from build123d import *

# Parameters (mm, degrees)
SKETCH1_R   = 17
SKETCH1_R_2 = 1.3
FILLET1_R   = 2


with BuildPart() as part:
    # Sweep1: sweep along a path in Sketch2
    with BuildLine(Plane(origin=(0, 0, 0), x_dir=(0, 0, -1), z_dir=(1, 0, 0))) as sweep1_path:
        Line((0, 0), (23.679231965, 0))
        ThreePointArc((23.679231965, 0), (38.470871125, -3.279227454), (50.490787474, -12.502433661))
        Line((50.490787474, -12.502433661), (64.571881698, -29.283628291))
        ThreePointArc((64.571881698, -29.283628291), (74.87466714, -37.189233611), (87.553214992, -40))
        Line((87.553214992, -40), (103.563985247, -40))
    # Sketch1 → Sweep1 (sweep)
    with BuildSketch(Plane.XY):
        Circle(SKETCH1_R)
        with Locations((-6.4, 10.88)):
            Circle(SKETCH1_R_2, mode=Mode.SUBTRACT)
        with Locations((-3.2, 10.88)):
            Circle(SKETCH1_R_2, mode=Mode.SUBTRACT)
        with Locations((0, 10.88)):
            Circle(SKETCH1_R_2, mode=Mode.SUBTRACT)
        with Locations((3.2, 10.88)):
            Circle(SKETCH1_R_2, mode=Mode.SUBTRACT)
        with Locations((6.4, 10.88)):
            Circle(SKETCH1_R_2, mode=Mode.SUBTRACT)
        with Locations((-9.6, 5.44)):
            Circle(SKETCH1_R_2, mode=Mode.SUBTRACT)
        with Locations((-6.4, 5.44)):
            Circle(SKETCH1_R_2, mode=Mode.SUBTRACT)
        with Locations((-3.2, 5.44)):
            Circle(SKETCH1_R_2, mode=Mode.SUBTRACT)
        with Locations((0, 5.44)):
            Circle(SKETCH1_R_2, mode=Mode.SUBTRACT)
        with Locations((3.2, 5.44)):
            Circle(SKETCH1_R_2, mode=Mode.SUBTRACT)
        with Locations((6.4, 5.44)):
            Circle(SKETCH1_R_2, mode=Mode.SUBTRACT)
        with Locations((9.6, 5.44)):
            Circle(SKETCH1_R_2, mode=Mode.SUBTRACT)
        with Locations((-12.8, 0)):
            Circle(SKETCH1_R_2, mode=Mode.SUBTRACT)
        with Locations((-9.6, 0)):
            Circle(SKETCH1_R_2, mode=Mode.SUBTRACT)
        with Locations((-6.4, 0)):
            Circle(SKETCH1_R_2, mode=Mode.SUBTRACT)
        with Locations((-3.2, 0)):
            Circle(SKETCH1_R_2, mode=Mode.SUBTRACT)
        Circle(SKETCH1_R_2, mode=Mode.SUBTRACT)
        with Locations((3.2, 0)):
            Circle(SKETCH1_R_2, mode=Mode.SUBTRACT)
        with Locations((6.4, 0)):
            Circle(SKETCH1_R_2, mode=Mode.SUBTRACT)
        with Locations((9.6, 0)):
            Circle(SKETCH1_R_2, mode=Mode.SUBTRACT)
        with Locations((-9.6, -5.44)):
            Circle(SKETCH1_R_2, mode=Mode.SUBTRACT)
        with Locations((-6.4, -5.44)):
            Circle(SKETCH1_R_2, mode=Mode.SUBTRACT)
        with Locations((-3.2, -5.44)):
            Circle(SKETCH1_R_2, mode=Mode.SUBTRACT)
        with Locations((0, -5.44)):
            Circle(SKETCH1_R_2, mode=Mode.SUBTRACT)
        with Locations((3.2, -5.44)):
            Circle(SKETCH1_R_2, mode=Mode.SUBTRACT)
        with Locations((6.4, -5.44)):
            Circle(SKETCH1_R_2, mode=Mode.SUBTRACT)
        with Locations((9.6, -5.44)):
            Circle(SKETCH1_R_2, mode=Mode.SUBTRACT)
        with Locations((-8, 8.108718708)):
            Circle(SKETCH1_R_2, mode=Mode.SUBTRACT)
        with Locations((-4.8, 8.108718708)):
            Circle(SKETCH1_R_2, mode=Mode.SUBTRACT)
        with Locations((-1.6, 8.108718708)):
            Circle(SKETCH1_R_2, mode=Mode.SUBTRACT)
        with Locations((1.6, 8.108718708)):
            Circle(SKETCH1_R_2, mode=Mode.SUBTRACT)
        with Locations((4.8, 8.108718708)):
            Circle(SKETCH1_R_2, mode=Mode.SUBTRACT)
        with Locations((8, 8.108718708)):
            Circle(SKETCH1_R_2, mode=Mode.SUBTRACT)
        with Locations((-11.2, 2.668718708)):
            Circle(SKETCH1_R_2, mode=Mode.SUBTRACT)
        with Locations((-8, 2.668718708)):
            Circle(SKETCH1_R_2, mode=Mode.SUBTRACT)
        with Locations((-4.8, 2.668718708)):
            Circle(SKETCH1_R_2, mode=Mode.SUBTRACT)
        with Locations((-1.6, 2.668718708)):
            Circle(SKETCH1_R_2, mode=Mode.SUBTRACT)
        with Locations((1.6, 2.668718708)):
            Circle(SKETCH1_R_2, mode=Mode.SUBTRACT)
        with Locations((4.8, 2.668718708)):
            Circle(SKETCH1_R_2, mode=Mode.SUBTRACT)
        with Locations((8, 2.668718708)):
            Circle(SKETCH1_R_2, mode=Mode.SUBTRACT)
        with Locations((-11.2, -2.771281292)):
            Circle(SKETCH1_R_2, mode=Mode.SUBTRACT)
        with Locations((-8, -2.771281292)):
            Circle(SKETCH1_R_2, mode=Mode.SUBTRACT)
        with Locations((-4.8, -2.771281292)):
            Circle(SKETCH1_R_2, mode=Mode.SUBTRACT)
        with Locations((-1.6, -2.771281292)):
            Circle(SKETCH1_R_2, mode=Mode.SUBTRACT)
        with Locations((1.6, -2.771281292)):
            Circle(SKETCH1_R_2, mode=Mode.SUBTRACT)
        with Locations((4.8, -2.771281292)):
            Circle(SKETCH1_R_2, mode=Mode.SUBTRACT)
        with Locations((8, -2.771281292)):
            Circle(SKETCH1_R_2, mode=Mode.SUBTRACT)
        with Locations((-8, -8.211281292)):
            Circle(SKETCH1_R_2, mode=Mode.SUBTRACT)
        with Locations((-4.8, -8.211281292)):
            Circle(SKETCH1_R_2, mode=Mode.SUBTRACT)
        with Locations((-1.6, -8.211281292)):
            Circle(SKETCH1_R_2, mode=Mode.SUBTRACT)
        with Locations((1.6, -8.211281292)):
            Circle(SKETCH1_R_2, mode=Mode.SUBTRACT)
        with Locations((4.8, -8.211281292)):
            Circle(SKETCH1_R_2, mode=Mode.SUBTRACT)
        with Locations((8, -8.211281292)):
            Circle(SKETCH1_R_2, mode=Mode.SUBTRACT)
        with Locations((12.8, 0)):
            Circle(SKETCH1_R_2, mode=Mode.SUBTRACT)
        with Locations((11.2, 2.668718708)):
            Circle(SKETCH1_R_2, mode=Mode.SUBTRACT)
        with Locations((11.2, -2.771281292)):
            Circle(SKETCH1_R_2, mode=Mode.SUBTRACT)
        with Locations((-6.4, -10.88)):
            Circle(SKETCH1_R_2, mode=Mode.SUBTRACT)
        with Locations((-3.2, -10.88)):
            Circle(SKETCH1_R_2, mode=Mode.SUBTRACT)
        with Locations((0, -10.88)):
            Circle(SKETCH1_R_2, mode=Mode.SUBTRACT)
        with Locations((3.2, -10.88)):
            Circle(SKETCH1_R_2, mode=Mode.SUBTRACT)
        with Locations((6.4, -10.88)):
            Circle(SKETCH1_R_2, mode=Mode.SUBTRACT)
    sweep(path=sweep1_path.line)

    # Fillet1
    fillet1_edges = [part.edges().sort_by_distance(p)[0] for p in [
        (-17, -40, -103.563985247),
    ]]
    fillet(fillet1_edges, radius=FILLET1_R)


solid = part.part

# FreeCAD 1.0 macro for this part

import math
import FreeCAD as App
import Part
import Sketcher
Q = App.Units.Quantity


def edges_at(feature, points):
    """Names of the edges that pass closest to the given points."""
    edges = feature.Shape.Edges
    near = lambda p: min(range(len(edges)), key=lambda i: edges[i].distToShape(Part.Vertex(*p))[0])
    return sorted({f"Edge{near(p) + 1}" for p in points})

doc = App.newDocument("Part")
params = doc.addObject("Spreadsheet::Sheet", "Params")
for row, (alias, value) in enumerate([
    ("sketch1_diameter", "34 mm"),
    ("sketch1_diameter2", "2.6 mm"),
    ("sketch2_radius", "35 mm"),
    ("sketch2_radius2", "30 mm"),
    ("fillet_radius", "2 mm"),
], start=1):
    params.set(f"A{row}", alias)
    params.set(f"B{row}", "=" + value)
    params.setAlias(f"B{row}", alias)

body = doc.addObject("PartDesign::Body", "Body")

# Sketch on XY plane
sketch1 = body.newObject("Sketcher::SketchObject", "Sketch")
sketch1.AttachmentSupport = (doc.getObject("XY_Plane"), [""])
sketch1.MapMode = "FlatFace"
sketch1.addGeometry([
    Part.Circle(App.Vector(0, 0, 0), App.Vector(0, 0, 1), 17),  # 0
    Part.Circle(App.Vector(-8, -8.2, 0), App.Vector(0, 0, 1), 1.3),  # 1
    Part.Circle(App.Vector(-6.4, -10.9, 0), App.Vector(0, 0, 1), 1.3),  # 2
    Part.Circle(App.Vector(-3.2, -10.9, 0), App.Vector(0, 0, 1), 1.3),  # 3
    Part.Circle(App.Vector(-4.8, -8.2, 0), App.Vector(0, 0, 1), 1.3),  # 4
    Part.Circle(App.Vector(-1.6, -8.2, 0), App.Vector(0, 0, 1), 1.3),  # 5
    Part.Circle(App.Vector(-9.6, -5.4, 0), App.Vector(0, 0, 1), 1.3),  # 6
    Part.Circle(App.Vector(-11.2, -2.8, 0), App.Vector(0, 0, 1), 1.3),  # 7
    Part.Circle(App.Vector(-8, -2.8, 0), App.Vector(0, 0, 1), 1.3),  # 8
    Part.Circle(App.Vector(-6.4, -5.4, 0), App.Vector(0, 0, 1), 1.3),  # 9
    Part.Circle(App.Vector(-3.2, -5.4, 0), App.Vector(0, 0, 1), 1.3),  # 10
    Part.Circle(App.Vector(-4.8, -2.8, 0), App.Vector(0, 0, 1), 1.3),  # 11
    Part.Circle(App.Vector(-1.6, -2.8, 0), App.Vector(0, 0, 1), 1.3),  # 12
    Part.Circle(App.Vector(0, -10.9, 0), App.Vector(0, 0, 1), 1.3),  # 13
    Part.Circle(App.Vector(3.2, -10.9, 0), App.Vector(0, 0, 1), 1.3),  # 14
    Part.Circle(App.Vector(6.4, -10.9, 0), App.Vector(0, 0, 1), 1.3),  # 15
    Part.Circle(App.Vector(1.6, -8.2, 0), App.Vector(0, 0, 1), 1.3),  # 16
    Part.Circle(App.Vector(4.8, -8.2, 0), App.Vector(0, 0, 1), 1.3),  # 17
    Part.Circle(App.Vector(8, -8.2, 0), App.Vector(0, 0, 1), 1.3),  # 18
    Part.Circle(App.Vector(0, -5.4, 0), App.Vector(0, 0, 1), 1.3),  # 19
    Part.Circle(App.Vector(3.2, -5.4, 0), App.Vector(0, 0, 1), 1.3),  # 20
    Part.Circle(App.Vector(6.4, -5.4, 0), App.Vector(0, 0, 1), 1.3),  # 21
    Part.Circle(App.Vector(1.6, -2.8, 0), App.Vector(0, 0, 1), 1.3),  # 22
    Part.Circle(App.Vector(4.8, -2.8, 0), App.Vector(0, 0, 1), 1.3),  # 23
    Part.Circle(App.Vector(9.6, -5.4, 0), App.Vector(0, 0, 1), 1.3),  # 24
    Part.Circle(App.Vector(8, -2.8, 0), App.Vector(0, 0, 1), 1.3),  # 25
    Part.Circle(App.Vector(11.2, -2.8, 0), App.Vector(0, 0, 1), 1.3),  # 26
    Part.Circle(App.Vector(-12.8, 0, 0), App.Vector(0, 0, 1), 1.3),  # 27
    Part.Circle(App.Vector(-11.2, 2.7, 0), App.Vector(0, 0, 1), 1.3),  # 28
    Part.Circle(App.Vector(-9.6, 0, 0), App.Vector(0, 0, 1), 1.3),  # 29
    Part.Circle(App.Vector(-8, 2.7, 0), App.Vector(0, 0, 1), 1.3),  # 30
    Part.Circle(App.Vector(-9.6, 5.4, 0), App.Vector(0, 0, 1), 1.3),  # 31
    Part.Circle(App.Vector(-6.4, 0, 0), App.Vector(0, 0, 1), 1.3),  # 32
    Part.Circle(App.Vector(-4.8, 2.7, 0), App.Vector(0, 0, 1), 1.3),  # 33
    Part.Circle(App.Vector(-3.2, 0, 0), App.Vector(0, 0, 1), 1.3),  # 34
    Part.Circle(App.Vector(-1.6, 2.7, 0), App.Vector(0, 0, 1), 1.3),  # 35
    Part.Circle(App.Vector(-6.4, 5.4, 0), App.Vector(0, 0, 1), 1.3),  # 36
    Part.Circle(App.Vector(-3.2, 5.4, 0), App.Vector(0, 0, 1), 1.3),  # 37
    Part.Circle(App.Vector(-8, 8.1, 0), App.Vector(0, 0, 1), 1.3),  # 38
    Part.Circle(App.Vector(-4.8, 8.1, 0), App.Vector(0, 0, 1), 1.3),  # 39
    Part.Circle(App.Vector(-1.6, 8.1, 0), App.Vector(0, 0, 1), 1.3),  # 40
    Part.Circle(App.Vector(-6.4, 10.9, 0), App.Vector(0, 0, 1), 1.3),  # 41
    Part.Circle(App.Vector(-3.2, 10.9, 0), App.Vector(0, 0, 1), 1.3),  # 42
    Part.Circle(App.Vector(0, 0, 0), App.Vector(0, 0, 1), 1.3),  # 43
    Part.Circle(App.Vector(3.2, 0, 0), App.Vector(0, 0, 1), 1.3),  # 44
    Part.Circle(App.Vector(1.6, 2.7, 0), App.Vector(0, 0, 1), 1.3),  # 45
    Part.Circle(App.Vector(6.4, 0, 0), App.Vector(0, 0, 1), 1.3),  # 46
    Part.Circle(App.Vector(4.8, 2.7, 0), App.Vector(0, 0, 1), 1.3),  # 47
    Part.Circle(App.Vector(0, 5.4, 0), App.Vector(0, 0, 1), 1.3),  # 48
    Part.Circle(App.Vector(3.2, 5.4, 0), App.Vector(0, 0, 1), 1.3),  # 49
    Part.Circle(App.Vector(6.4, 5.4, 0), App.Vector(0, 0, 1), 1.3),  # 50
    Part.Circle(App.Vector(9.6, 0, 0), App.Vector(0, 0, 1), 1.3),  # 51
    Part.Circle(App.Vector(8, 2.7, 0), App.Vector(0, 0, 1), 1.3),  # 52
    Part.Circle(App.Vector(12.8, 0, 0), App.Vector(0, 0, 1), 1.3),  # 53
    Part.Circle(App.Vector(11.2, 2.7, 0), App.Vector(0, 0, 1), 1.3),  # 54
    Part.Circle(App.Vector(9.6, 5.4, 0), App.Vector(0, 0, 1), 1.3),  # 55
    Part.Circle(App.Vector(1.6, 8.1, 0), App.Vector(0, 0, 1), 1.3),  # 56
    Part.Circle(App.Vector(4.8, 8.1, 0), App.Vector(0, 0, 1), 1.3),  # 57
    Part.Circle(App.Vector(0, 10.9, 0), App.Vector(0, 0, 1), 1.3),  # 58
    Part.Circle(App.Vector(3.2, 10.9, 0), App.Vector(0, 0, 1), 1.3),  # 59
    Part.Circle(App.Vector(6.4, 10.9, 0), App.Vector(0, 0, 1), 1.3),  # 60
    Part.Circle(App.Vector(8, 8.1, 0), App.Vector(0, 0, 1), 1.3),  # 61
], False)
sketch1.addConstraint([
    Sketcher.Constraint("Coincident", 0, 3, -1, 1),
    Sketcher.Constraint("Coincident", 43, 3, -1, 1),
    Sketcher.Constraint("Equal", 1, 2),
    Sketcher.Constraint("Equal", 2, 3),
    Sketcher.Constraint("Equal", 3, 4),
    Sketcher.Constraint("Equal", 4, 5),
    Sketcher.Constraint("Equal", 5, 6),
    Sketcher.Constraint("Equal", 6, 7),
    Sketcher.Constraint("Equal", 7, 8),
    Sketcher.Constraint("Equal", 8, 9),
    Sketcher.Constraint("Equal", 9, 10),
    Sketcher.Constraint("Equal", 10, 11),
    Sketcher.Constraint("Equal", 11, 12),
    Sketcher.Constraint("Equal", 12, 13),
    Sketcher.Constraint("Equal", 13, 14),
    Sketcher.Constraint("Equal", 14, 15),
    Sketcher.Constraint("Equal", 15, 16),
    Sketcher.Constraint("Equal", 16, 17),
    Sketcher.Constraint("Equal", 17, 18),
    Sketcher.Constraint("Equal", 18, 19),
    Sketcher.Constraint("Equal", 19, 20),
    Sketcher.Constraint("Equal", 20, 21),
    Sketcher.Constraint("Equal", 21, 22),
    Sketcher.Constraint("Equal", 22, 23),
    Sketcher.Constraint("Equal", 23, 24),
    Sketcher.Constraint("Equal", 24, 25),
    Sketcher.Constraint("Equal", 25, 26),
    Sketcher.Constraint("Equal", 26, 27),
    Sketcher.Constraint("Equal", 27, 28),
    Sketcher.Constraint("Equal", 28, 29),
    Sketcher.Constraint("Equal", 29, 30),
    Sketcher.Constraint("Equal", 30, 31),
    Sketcher.Constraint("Equal", 31, 32),
    Sketcher.Constraint("Equal", 32, 33),
    Sketcher.Constraint("Equal", 33, 34),
    Sketcher.Constraint("Equal", 34, 35),
    Sketcher.Constraint("Equal", 35, 36),
    Sketcher.Constraint("Equal", 36, 37),
    Sketcher.Constraint("Equal", 37, 38),
    Sketcher.Constraint("Equal", 38, 39),
    Sketcher.Constraint("Equal", 39, 40),
    Sketcher.Constraint("Equal", 40, 41),
    Sketcher.Constraint("Equal", 41, 42),
    Sketcher.Constraint("Equal", 42, 43),
    Sketcher.Constraint("Equal", 43, 44),
    Sketcher.Constraint("Equal", 44, 45),
    Sketcher.Constraint("Equal", 45, 46),
    Sketcher.Constraint("Equal", 46, 47),
    Sketcher.Constraint("Equal", 47, 48),
    Sketcher.Constraint("Equal", 48, 49),
    Sketcher.Constraint("Equal", 49, 50),
    Sketcher.Constraint("Equal", 50, 51),
    Sketcher.Constraint("Equal", 51, 52),
    Sketcher.Constraint("Equal", 52, 53),
    Sketcher.Constraint("Equal", 53, 54),
    Sketcher.Constraint("Equal", 54, 55),
    Sketcher.Constraint("Equal", 55, 56),
    Sketcher.Constraint("Equal", 56, 57),
    Sketcher.Constraint("Equal", 57, 58),
    Sketcher.Constraint("Equal", 58, 59),
    Sketcher.Constraint("Equal", 59, 60),
    Sketcher.Constraint("Equal", 60, 61),
    Sketcher.Constraint("Symmetric", 24, 3, 31, 3, -1, 1),
    Sketcher.Constraint("Symmetric", 21, 3, 36, 3, -1, 1),
    Sketcher.Constraint("Symmetric", 20, 3, 37, 3, -1, 1),
    Sketcher.Constraint("Symmetric", 15, 3, 41, 3, -1, 1),
    Sketcher.Constraint("Symmetric", 14, 3, 42, 3, -1, 1),
    Sketcher.Constraint("Symmetric", 34, 3, 44, 3, -1, 1),
    Sketcher.Constraint("Symmetric", 32, 3, 46, 3, -1, 1),
    Sketcher.Constraint("Symmetric", 19, 3, 48, 3, -1, 1),
    Sketcher.Constraint("Symmetric", 10, 3, 49, 3, -1, 1),
    Sketcher.Constraint("Symmetric", 9, 3, 50, 3, -1, 1),
    Sketcher.Constraint("Symmetric", 29, 3, 51, 3, -1, 1),
    Sketcher.Constraint("Symmetric", 27, 3, 53, 3, -1, 1),
    Sketcher.Constraint("Symmetric", 6, 3, 55, 3, -1, 1),
    Sketcher.Constraint("Symmetric", 13, 3, 58, 3, -1, 1),
    Sketcher.Constraint("Symmetric", 3, 3, 59, 3, -1, 1),
    Sketcher.Constraint("Symmetric", 2, 3, 60, 3, -1, 1),
    Sketcher.Constraint("Symmetric", 3, 3, 14, 3, -2),
    Sketcher.Constraint("Symmetric", 2, 3, 15, 3, -2),
    Sketcher.Constraint("Symmetric", 5, 3, 16, 3, -2),
    Sketcher.Constraint("Symmetric", 4, 3, 17, 3, -2),
    Sketcher.Constraint("Symmetric", 1, 3, 18, 3, -2),
    Sketcher.Constraint("Symmetric", 10, 3, 20, 3, -2),
    Sketcher.Constraint("Symmetric", 9, 3, 21, 3, -2),
    Sketcher.Constraint("Symmetric", 12, 3, 22, 3, -2),
    Sketcher.Constraint("Symmetric", 11, 3, 23, 3, -2),
    Sketcher.Constraint("Symmetric", 6, 3, 24, 3, -2),
    Sketcher.Constraint("Symmetric", 8, 3, 25, 3, -2),
    Sketcher.Constraint("Symmetric", 7, 3, 26, 3, -2),
    Sketcher.Constraint("Symmetric", 35, 3, 45, 3, -2),
    Sketcher.Constraint("Symmetric", 33, 3, 47, 3, -2),
    Sketcher.Constraint("Symmetric", 30, 3, 52, 3, -2),
    Sketcher.Constraint("Symmetric", 28, 3, 54, 3, -2),
    Sketcher.Constraint("Symmetric", 40, 3, 56, 3, -2),
    Sketcher.Constraint("Symmetric", 39, 3, 57, 3, -2),
    Sketcher.Constraint("Symmetric", 38, 3, 61, 3, -2),
    Sketcher.Constraint("PointOnObject", 13, 3, -2),
    Sketcher.Constraint("PointOnObject", 19, 3, -2),
    Sketcher.Constraint("PointOnObject", 27, 3, -1),
    Sketcher.Constraint("PointOnObject", 29, 3, -1),
    Sketcher.Constraint("PointOnObject", 32, 3, -1),
    Sketcher.Constraint("PointOnObject", 34, 3, -1),
    Sketcher.Constraint("Horizontal", 2, 3, 3, 3),
    Sketcher.Constraint("Horizontal", 1, 3, 4, 3),
    Sketcher.Constraint("Horizontal", 4, 3, 5, 3),
    Sketcher.Constraint("Horizontal", 7, 3, 8, 3),
    Sketcher.Constraint("Horizontal", 6, 3, 9, 3),
    Sketcher.Constraint("Horizontal", 9, 3, 10, 3),
    Sketcher.Constraint("Horizontal", 8, 3, 11, 3),
    Sketcher.Constraint("Horizontal", 11, 3, 12, 3),
    Sketcher.Constraint("Horizontal", 3, 3, 13, 3),
    Sketcher.Constraint("Horizontal", 10, 3, 19, 3),
    Sketcher.Constraint("Horizontal", 28, 3, 30, 3),
    Sketcher.Constraint("Horizontal", 30, 3, 33, 3),
    Sketcher.Constraint("Horizontal", 33, 3, 35, 3),
    Sketcher.Constraint("Horizontal", 38, 3, 39, 3),
    Sketcher.Constraint("Horizontal", 39, 3, 40, 3),
    Sketcher.Constraint("Vertical", 1, 3, 8, 3),
    Sketcher.Constraint("Vertical", 2, 3, 9, 3),
    Sketcher.Constraint("Vertical", 3, 3, 10, 3),
    Sketcher.Constraint("Vertical", 4, 3, 11, 3),
    Sketcher.Constraint("Vertical", 5, 3, 12, 3),
    Sketcher.Constraint("Vertical", 7, 3, 28, 3),
    Sketcher.Constraint("Vertical", 6, 3, 29, 3),
    Sketcher.Constraint("Vertical", 8, 3, 30, 3),
    Sketcher.Constraint("Vertical", 9, 3, 32, 3),
    Sketcher.Constraint("Vertical", 11, 3, 33, 3),
    Sketcher.Constraint("Vertical", 10, 3, 34, 3),
    Sketcher.Constraint("Vertical", 12, 3, 35, 3),
    Sketcher.Constraint("Vertical", 30, 3, 38, 3),
    Sketcher.Constraint("Vertical", 33, 3, 39, 3),
    Sketcher.Constraint("Vertical", 35, 3, 40, 3),
    Sketcher.Constraint("Diameter", 0, 34.0),
    Sketcher.Constraint("Diameter", 1, 2.6),
    Sketcher.Constraint("DistanceX", 1, 3, -1, 1, 8.0),
    Sketcher.Constraint("DistanceX", 2, 3, -1, 1, 6.4),
    Sketcher.Constraint("DistanceX", 3, 3, -1, 1, 3.2),
    Sketcher.Constraint("DistanceX", 4, 3, -1, 1, 4.8),
    Sketcher.Constraint("DistanceX", 5, 3, -1, 1, 1.6),
    Sketcher.Constraint("DistanceX", 6, 3, -1, 1, 9.6),
    Sketcher.Constraint("DistanceX", 7, 3, -1, 1, 11.2),
    Sketcher.Constraint("DistanceX", 27, 3, -1, 1, 12.8),
    Sketcher.Constraint("DistanceY", 2, 3, -1, 1, 10.88),
    Sketcher.Constraint("DistanceY", 6, 3, -1, 1, 5.44),
    Sketcher.Constraint("DistanceY", 1, 3, -1, 1, 8.211281),
    Sketcher.Constraint("DistanceY", 7, 3, -1, 1, 2.771281),
    Sketcher.Constraint("DistanceY", -1, 1, 28, 3, 2.668719),
    Sketcher.Constraint("DistanceY", -1, 1, 38, 3, 8.108719),
])
sketch1.setExpression("Constraints[133]", "Params.sketch1_diameter")
sketch1.setExpression("Constraints[134]", "Params.sketch1_diameter2")

# Sketch on YZ plane
sketch2 = body.newObject("Sketcher::SketchObject", "Sketch001")
sketch2.AttachmentSupport = (doc.getObject("YZ_Plane"), [""])
sketch2.MapMode = "FlatFace"
sketch2.addGeometry([
    Part.LineSegment(App.Vector(0, 0, 0), App.Vector(0, -24, 0)),  # 0
    Part.ArcOfCircle(Part.Circle(App.Vector(-35, -24, 0), App.Vector(0, 0, 1), 35), math.radians(-50), math.radians(0)),  # 1
    Part.LineSegment(App.Vector(-13, -50, 0), App.Vector(-29, -65, 0)),  # 2
    Part.ArcOfCircle(Part.Circle(App.Vector(-10, -88, 0), App.Vector(0, 0, 1), 30), math.radians(130), math.radians(180)),  # 3
    Part.LineSegment(App.Vector(-40, -88, 0), App.Vector(-40, -104, 0)),  # 4
], False)
sketch2.addConstraint([
    Sketcher.Constraint("Tangent", 0, 2, 1, 2),
    Sketcher.Constraint("Tangent", 1, 1, 2, 1),
    Sketcher.Constraint("Tangent", 2, 2, 3, 1),
    Sketcher.Constraint("Tangent", 3, 2, 4, 1),
    Sketcher.Constraint("Vertical", 0),
    Sketcher.Constraint("Vertical", 4),
    Sketcher.Constraint("Coincident", 0, 1, -1, 1),
    Sketcher.Constraint("Radius", 1, 35.0),
    Sketcher.Constraint("Radius", 3, 30.0),
    Sketcher.Constraint("Angle", 2, Q("-140 deg")),
    Sketcher.Constraint("DistanceX", 3, 3, -1, 1, 10.0),
    Sketcher.Constraint("DistanceY", 0, 2, 0, 1, 23.679232),
    Sketcher.Constraint("DistanceY", 4, 2, 4, 1, 16.01077),
])
sketch2.setExpression("Constraints[7]", "Params.sketch2_radius")
sketch2.setExpression("Constraints[8]", "Params.sketch2_radius2")
doc.recompute()

additivepipe = body.newObject("PartDesign::AdditivePipe", "AdditivePipe")
additivepipe.Profile = sketch1
additivepipe.Spine = (sketch2, ["Edge1", "Edge2", "Edge3", "Edge4", "Edge5"])
doc.recompute()

fillet = body.newObject("PartDesign::Fillet", "Fillet")
fillet.Base = (additivepipe, edges_at(additivepipe, [(-17, -40, -103.564)]))
fillet.setExpression("Radius", "Params.fillet_radius")

doc.recompute()
